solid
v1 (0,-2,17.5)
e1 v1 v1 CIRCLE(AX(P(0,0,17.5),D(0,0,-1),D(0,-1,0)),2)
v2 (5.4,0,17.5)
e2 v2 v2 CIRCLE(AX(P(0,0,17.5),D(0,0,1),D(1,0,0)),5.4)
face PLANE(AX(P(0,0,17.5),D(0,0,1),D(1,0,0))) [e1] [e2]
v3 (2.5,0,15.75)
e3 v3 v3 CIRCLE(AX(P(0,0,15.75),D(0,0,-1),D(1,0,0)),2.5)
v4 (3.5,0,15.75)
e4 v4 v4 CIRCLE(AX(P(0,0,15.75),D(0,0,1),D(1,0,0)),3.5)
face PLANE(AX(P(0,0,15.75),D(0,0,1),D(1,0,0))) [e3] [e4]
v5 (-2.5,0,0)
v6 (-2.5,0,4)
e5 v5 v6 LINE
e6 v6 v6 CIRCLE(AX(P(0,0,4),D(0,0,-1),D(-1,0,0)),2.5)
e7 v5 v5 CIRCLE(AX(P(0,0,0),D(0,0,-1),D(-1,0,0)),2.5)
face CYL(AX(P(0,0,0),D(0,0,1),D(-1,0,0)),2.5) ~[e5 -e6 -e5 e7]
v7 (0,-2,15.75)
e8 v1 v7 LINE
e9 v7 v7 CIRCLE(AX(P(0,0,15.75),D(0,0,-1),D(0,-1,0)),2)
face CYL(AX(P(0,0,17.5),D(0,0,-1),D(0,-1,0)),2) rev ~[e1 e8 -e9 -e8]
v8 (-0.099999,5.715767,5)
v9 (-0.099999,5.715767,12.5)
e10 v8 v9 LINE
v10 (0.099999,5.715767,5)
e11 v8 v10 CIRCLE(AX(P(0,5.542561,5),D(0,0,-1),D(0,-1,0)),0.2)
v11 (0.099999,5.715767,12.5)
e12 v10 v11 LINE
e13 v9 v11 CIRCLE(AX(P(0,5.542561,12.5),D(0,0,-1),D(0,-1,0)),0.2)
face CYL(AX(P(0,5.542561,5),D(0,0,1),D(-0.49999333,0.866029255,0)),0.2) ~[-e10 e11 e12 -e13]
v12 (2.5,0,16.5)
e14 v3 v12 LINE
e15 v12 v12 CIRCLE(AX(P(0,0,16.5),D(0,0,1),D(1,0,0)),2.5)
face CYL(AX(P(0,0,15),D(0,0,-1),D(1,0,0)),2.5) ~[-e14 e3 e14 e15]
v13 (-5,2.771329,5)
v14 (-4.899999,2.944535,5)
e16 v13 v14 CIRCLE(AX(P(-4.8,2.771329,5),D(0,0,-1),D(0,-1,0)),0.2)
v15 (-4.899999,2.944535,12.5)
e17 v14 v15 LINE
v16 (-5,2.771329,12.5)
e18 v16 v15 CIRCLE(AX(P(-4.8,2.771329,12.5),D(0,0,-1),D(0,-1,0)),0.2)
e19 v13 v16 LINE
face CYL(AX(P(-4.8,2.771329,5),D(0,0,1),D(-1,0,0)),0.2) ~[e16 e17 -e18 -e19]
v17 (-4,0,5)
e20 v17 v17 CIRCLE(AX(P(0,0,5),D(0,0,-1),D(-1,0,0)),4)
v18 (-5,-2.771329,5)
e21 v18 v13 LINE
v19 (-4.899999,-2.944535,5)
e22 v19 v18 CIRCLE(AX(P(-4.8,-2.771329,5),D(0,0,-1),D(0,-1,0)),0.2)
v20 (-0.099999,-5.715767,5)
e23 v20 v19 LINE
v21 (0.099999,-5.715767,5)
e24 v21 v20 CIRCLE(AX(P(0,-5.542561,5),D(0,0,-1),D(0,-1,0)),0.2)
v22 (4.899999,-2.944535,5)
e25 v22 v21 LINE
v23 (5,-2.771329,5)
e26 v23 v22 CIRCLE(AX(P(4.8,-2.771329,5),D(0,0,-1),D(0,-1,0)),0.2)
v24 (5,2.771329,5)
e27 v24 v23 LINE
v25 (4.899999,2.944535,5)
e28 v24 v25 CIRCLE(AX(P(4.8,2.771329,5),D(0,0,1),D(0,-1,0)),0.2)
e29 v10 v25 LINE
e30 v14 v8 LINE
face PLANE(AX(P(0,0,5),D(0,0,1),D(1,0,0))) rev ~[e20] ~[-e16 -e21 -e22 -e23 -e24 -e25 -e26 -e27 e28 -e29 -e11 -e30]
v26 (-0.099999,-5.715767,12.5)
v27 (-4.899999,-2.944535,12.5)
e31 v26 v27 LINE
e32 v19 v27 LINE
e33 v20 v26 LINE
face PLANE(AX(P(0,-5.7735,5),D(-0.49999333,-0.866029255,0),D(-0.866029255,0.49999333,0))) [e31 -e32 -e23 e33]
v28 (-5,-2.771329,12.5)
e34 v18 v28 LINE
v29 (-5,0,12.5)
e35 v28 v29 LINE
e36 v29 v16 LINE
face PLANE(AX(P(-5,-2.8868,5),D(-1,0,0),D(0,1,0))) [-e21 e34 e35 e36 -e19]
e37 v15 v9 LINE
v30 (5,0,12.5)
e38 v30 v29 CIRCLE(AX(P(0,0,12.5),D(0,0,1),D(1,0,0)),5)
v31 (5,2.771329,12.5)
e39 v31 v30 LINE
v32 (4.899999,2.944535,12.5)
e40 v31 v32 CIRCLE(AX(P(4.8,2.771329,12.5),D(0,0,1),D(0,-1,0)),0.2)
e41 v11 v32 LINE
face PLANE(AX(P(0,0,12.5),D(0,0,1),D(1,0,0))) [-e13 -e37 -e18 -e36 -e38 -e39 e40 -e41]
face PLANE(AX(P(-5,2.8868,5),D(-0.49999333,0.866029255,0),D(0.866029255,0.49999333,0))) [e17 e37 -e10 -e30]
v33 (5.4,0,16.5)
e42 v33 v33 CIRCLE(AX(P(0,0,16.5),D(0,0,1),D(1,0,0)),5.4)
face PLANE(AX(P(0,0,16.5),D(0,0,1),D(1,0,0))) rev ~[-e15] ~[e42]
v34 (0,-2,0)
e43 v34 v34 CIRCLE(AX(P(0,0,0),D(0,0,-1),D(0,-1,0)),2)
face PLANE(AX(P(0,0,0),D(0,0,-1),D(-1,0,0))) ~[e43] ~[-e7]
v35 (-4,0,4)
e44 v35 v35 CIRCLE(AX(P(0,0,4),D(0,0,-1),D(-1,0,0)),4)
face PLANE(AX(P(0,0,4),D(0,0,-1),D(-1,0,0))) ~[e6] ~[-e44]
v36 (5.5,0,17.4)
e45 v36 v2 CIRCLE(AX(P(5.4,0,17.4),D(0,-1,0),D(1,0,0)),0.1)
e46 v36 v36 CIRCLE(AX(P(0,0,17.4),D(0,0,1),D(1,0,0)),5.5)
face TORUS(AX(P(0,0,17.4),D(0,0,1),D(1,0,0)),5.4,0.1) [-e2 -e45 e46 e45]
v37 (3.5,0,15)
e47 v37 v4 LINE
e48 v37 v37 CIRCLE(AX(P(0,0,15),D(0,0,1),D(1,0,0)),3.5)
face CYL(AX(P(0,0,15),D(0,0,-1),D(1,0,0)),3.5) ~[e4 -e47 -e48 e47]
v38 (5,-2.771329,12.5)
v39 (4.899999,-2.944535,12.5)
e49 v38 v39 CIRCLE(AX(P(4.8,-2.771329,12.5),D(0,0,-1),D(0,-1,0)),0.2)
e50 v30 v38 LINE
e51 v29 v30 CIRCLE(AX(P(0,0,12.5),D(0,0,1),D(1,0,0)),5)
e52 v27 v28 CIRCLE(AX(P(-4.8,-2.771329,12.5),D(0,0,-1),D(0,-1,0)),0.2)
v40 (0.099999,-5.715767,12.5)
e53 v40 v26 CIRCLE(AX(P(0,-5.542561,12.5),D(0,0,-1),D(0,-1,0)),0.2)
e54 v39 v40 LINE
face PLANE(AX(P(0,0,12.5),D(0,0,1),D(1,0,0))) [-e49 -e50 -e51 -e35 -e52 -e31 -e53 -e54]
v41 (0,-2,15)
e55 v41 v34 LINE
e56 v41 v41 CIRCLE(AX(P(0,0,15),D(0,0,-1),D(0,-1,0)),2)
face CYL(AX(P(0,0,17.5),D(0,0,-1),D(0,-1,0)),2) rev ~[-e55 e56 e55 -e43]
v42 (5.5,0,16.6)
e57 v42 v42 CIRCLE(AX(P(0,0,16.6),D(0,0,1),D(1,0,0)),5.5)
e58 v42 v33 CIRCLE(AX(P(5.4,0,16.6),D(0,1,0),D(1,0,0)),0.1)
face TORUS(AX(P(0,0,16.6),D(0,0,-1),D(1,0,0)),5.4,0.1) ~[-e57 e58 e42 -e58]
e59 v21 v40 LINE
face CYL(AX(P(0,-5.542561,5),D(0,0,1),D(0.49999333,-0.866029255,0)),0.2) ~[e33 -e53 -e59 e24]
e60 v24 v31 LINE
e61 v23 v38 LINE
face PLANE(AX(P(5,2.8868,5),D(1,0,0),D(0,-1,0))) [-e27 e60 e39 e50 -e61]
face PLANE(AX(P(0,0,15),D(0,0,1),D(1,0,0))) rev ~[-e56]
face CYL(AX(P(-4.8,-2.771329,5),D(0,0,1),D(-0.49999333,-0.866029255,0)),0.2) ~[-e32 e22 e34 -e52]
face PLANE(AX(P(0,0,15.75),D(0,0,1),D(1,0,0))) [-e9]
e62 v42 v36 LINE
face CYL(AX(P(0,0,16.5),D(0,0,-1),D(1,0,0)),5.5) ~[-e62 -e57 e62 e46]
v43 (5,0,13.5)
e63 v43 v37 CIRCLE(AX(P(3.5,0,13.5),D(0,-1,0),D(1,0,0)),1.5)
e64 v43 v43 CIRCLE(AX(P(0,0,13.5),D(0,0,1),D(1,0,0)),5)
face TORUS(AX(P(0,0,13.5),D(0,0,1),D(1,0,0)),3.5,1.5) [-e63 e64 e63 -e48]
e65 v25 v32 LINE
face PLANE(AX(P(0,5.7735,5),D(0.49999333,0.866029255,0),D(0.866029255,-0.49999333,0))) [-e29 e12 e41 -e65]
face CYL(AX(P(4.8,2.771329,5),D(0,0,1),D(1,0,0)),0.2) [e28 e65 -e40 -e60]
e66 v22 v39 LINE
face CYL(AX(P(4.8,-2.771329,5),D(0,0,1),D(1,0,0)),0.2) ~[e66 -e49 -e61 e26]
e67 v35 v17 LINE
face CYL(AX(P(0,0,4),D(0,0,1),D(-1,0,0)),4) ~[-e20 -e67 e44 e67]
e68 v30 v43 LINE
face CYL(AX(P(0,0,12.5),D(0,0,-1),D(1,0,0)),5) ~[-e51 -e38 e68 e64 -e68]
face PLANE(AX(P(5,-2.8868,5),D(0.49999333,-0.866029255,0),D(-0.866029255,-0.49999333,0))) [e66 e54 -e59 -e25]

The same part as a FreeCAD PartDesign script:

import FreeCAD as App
import Part
import Sketcher
Q = App.Units.Quantity


def edges_at(feature, points):
    """Names of the edges that pass closest to the given points."""
    edges = feature.Shape.Edges
    near = lambda p: min(range(len(edges)), key=lambda i: edges[i].distToShape(Part.Vertex(*p))[0])
    return sorted({f"Edge{near(p) + 1}" for p in points})

doc = App.newDocument("Part")
body = doc.addObject("PartDesign::Body", "Body")

sketch1 = body.newObject("Sketcher::SketchObject", "Sketch")
sketch1.AttachmentSupport = (doc.getObject("XZ_Plane"), [""])
sketch1.MapMode = "FlatFace"
sketch1.addGeometry([
    Part.LineSegment(App.Vector(0, 5, 0), App.Vector(0, 0, 0)),
    Part.LineSegment(App.Vector(0, 0, 0), App.Vector(-2.5, 0, 0)),
    Part.LineSegment(App.Vector(-2.5, 0, 0), App.Vector(-2.5, 4, 0)),
    Part.LineSegment(App.Vector(-2.5, 4, 0), App.Vector(-4, 4, 0)),
    Part.LineSegment(App.Vector(-4, 4, 0), App.Vector(-4, 5, 0)),
    Part.LineSegment(App.Vector(-4, 5, 0), App.Vector(0, 5, 0)),
], False)
sketch1.addConstraint([
    Sketcher.Constraint("Coincident", 0, 2, 1, 1),
    Sketcher.Constraint("Coincident", 1, 2, 2, 1),
    Sketcher.Constraint("Coincident", 2, 2, 3, 1),
    Sketcher.Constraint("Coincident", 3, 2, 4, 1),
    Sketcher.Constraint("Coincident", 4, 2, 5, 1),
    Sketcher.Constraint("Coincident", 5, 2, 0, 1),
    Sketcher.Constraint("Vertical", 0),
    Sketcher.Constraint("Horizontal", 1),
    Sketcher.Constraint("Vertical", 2),
    Sketcher.Constraint("Horizontal", 3),
    Sketcher.Constraint("Vertical", 4),
    Sketcher.Constraint("Horizontal", 5),
    Sketcher.Constraint("Coincident", 0, 2, -1, 1),
    Sketcher.Constraint("Equal", 5, 2),
    Sketcher.Constraint("DistanceX", 5, 1, 5, 2, 4.0),
    Sketcher.Constraint("DistanceX", 1, 2, 1, 1, 2.5),
    Sketcher.Constraint("DistanceY", 0, 2, 0, 1, 5.0),
])
revolution = body.newObject("PartDesign::Revolution", "Revolution")
revolution.Profile = sketch1
revolution.ReferenceAxis = (sketch1, ["V_Axis"])
revolution.Angle = 360

sketch2 = body.newObject("Sketcher::SketchObject", "Sketch001")
sketch2.AttachmentSupport = (doc.getObject("XY_Plane"), [""])
sketch2.MapMode = "FlatFace"
sketch2.AttachmentOffset = App.Placement(App.Vector(0, 0, 5), App.Rotation())
sketch2.addGeometry([
    Part.LineSegment(App.Vector(5, -3, 0), App.Vector(5, 3, 0)),
    Part.LineSegment(App.Vector(5, 3, 0), App.Vector(0, 6, 0)),
    Part.LineSegment(App.Vector(0, 6, 0), App.Vector(-5, 3, 0)),
    Part.LineSegment(App.Vector(-5, 3, 0), App.Vector(-5, -3, 0)),
    Part.LineSegment(App.Vector(-5, -3, 0), App.Vector(0, -6, 0)),
    Part.LineSegment(App.Vector(0, -6, 0), App.Vector(5, -3, 0)),
], False)
sketch2.addConstraint([
    Sketcher.Constraint("Coincident", 0, 2, 1, 1),
    Sketcher.Constraint("Coincident", 1, 2, 2, 1),
    Sketcher.Constraint("Coincident", 2, 2, 3, 1),
    Sketcher.Constraint("Coincident", 3, 2, 4, 1),
    Sketcher.Constraint("Coincident", 4, 2, 5, 1),
    Sketcher.Constraint("Coincident", 5, 2, 0, 1),
    Sketcher.Constraint("Vertical", 0),
    Sketcher.Constraint("Vertical", 3),
    Sketcher.Constraint("Symmetric", 0, 2, 3, 2, -1, 1),
    Sketcher.Constraint("Symmetric", 1, 2, 4, 2, -1, 1),
    Sketcher.Constraint("PointOnObject", 1, 2, -2),
    Sketcher.Constraint("Parallel", 2, 5),
    Sketcher.Constraint("Horizontal", 0, 2, 2, 2),
    Sketcher.Constraint("DistanceX", 2, 2, 0, 2, 10.0),
    Sketcher.Constraint("Angle", 1, Q("150.0004 deg")),
    Sketcher.Constraint("DistanceY", 0, 1, 0, 2, 5.7736),
])
pad1 = body.newObject("PartDesign::Pad", "Pad")
pad1.Profile = sketch2
pad1.Length = 7.5

sketch3 = body.newObject("Sketcher::SketchObject", "Sketch002")
sketch3.AttachmentSupport = (doc.getObject("XY_Plane"), [""])
sketch3.MapMode = "FlatFace"
sketch3.AttachmentOffset = App.Placement(App.Vector(0, 0, 12.5), App.Rotation())
sketch3.addGeometry(Part.Circle(App.Vector(0, 0, 0), App.Vector(0, 0, 1), 5), False)
sketch3.addConstraint([
    Sketcher.Constraint("Coincident", 0, 3, -1, 1),
    Sketcher.Constraint("Diameter", 0, 10.0),
])
pad2 = body.newObject("PartDesign::Pad", "Pad001")
pad2.Profile = sketch3
pad2.Length = 2.5
doc.recompute()

fillet = body.newObject("PartDesign::Fillet", "Fillet")
fillet.Base = (pad2, edges_at(pad2, [(-5, 0, 15)]))
fillet.Radius = 1.5

sketch4 = body.newObject("Sketcher::SketchObject", "Sketch003")
sketch4.AttachmentSupport = (doc.getObject("XY_Plane"), [""])
sketch4.MapMode = "FlatFace"
sketch4.AttachmentOffset = App.Placement(App.Vector(0, 0, 15), App.Rotation())
sketch4.addGeometry(Part.Circle(App.Vector(0, 0, 0), App.Vector(0, 0, 1), 2.5), False)
sketch4.addConstraint([
    Sketcher.Constraint("Coincident", 0, 3, -1, 1),
    Sketcher.Constraint("Diameter", 0, 5.0),
])
pad3 = body.newObject("PartDesign::Pad", "Pad002")
pad3.Profile = sketch4
pad3.Length = 1.5

sketch5 = body.newObject("Sketcher::SketchObject", "Sketch004")
sketch5.AttachmentSupport = (doc.getObject("XY_Plane"), [""])
sketch5.MapMode = "FlatFace"
sketch5.AttachmentOffset = App.Placement(App.Vector(0, 0, 16.5), App.Rotation())
sketch5.addGeometry(Part.Circle(App.Vector(0, 0, 0), App.Vector(0, 0, 1), 6), False)
sketch5.addConstraint([
    Sketcher.Constraint("Coincident", 0, 3, -1, 1),
    Sketcher.Constraint("Diameter", 0, 11.0),
])
pad4 = body.newObject("PartDesign::Pad", "Pad003")
pad4.Profile = sketch5
pad4.Length = 1

sketch6 = body.newObject("Sketcher::SketchObject", "Sketch005")
sketch6.AttachmentSupport = (doc.getObject("XY_Plane"), [""])
sketch6.MapMode = "FlatFace"
sketch6.AttachmentOffset = App.Placement(App.Vector(0, 0, 17.5), App.Rotation())
sketch6.addGeometry(Part.Circle(App.Vector(0, 0, 0), App.Vector(0, 0, 1), 2), False)
sketch6.addConstraint([
    Sketcher.Constraint("Coincident", 0, 3, -1, 1),
    Sketcher.Constraint("Diameter", 0, 4.0),
])
doc.recompute()
hole = body.newObject("PartDesign::Hole", "Hole")
hole.Profile = sketch6
hole.ThreadType = "None"
hole.Diameter = 4
hole.DepthType = "ThroughAll"
doc.recompute()

fillet2 = body.newObject("PartDesign::Fillet", "Fillet001")
fillet2.Base = (hole, edges_at(hole, [(-5.5, 0, 17.5), (-5.5, 0, 16.5)]))
fillet2.Radius = 0.1
doc.recompute()

fillet3 = body.newObject("PartDesign::Fillet", "Fillet002")
fillet3.Base = (fillet2, edges_at(fillet2, [
    (0, -5.774, 8.75),
    (5, -2.887, 8.75),
    (5, 2.887, 8.75),
    (0, 5.774, 8.75),
    (-5, 2.887, 8.75),
    (-5, -2.887, 8.75),
]))
fillet3.Radius = 0.2

sketch7 = body.newObject("Sketcher::SketchObject", "Sketch006")
sketch7.AttachmentSupport = (doc.getObject("XY_Plane"), [""])
sketch7.MapMode = "FlatFace"
sketch7.AttachmentOffset = App.Placement(App.Vector(0, 0, 15), App.Rotation())
sketch7.addGeometry(Part.Circle(App.Vector(0, 0, 0), App.Vector(0, 0, 1), 3.5), False)
sketch7.addConstraint([
    Sketcher.Constraint("Coincident", 0, 3, -1, 1),
    Sketcher.Constraint("Diameter", 0, 7.0),
])
pad5 = body.newObject("PartDesign::Pad", "Pad004")
pad5.Profile = sketch7
pad5.Length = 0.75

doc.recompute()
